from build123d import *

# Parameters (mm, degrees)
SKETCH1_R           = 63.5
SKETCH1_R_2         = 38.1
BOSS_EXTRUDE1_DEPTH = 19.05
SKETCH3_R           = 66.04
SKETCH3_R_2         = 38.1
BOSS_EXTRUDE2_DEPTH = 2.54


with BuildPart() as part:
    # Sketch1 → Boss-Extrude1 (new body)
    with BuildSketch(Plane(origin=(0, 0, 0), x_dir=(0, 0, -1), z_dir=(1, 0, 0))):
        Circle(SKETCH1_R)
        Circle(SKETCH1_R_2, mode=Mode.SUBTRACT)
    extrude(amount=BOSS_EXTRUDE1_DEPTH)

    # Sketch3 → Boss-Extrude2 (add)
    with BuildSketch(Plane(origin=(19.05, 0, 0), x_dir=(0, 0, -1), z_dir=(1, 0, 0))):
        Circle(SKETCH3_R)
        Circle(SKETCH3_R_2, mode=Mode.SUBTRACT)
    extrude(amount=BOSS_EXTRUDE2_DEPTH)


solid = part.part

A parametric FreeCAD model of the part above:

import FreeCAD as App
import Part
import Sketcher
Q = App.Units.Quantity

doc = App.newDocument("Part")
params = doc.addObject("Spreadsheet::Sheet", "Params")
for row, (alias, value) in enumerate([
    ("sketch1_diameter", "5 in"),
    ("sketch1_diameter2", "3 in"),
    ("pad1_length", "0.75 in"),
    ("sketch2_diameter", "3 in"),
    ("sketch2_diameter2", "5.2 in"),
    ("pad2_length", "0.1 in"),
], start=1):
    params.set(f"A{row}", alias)
    params.set(f"B{row}", "=" + value)
    params.setAlias(f"B{row}", alias)

body = doc.addObject("PartDesign::Body", "Body")

# Sketch on YZ plane
sketch1 = body.newObject("Sketcher::SketchObject", "Sketch")
sketch1.AttachmentSupport = (doc.getObject("YZ_Plane"), [""])
sketch1.MapMode = "FlatFace"
sketch1.addGeometry([
    Part.Circle(App.Vector(0, 0, 0), App.Vector(0, 0, 1), 64),
    Part.Circle(App.Vector(0, 0, 0), App.Vector(0, 0, 1), 38),
], False)
sketch1.addConstraint([
    Sketcher.Constraint("Coincident", 0, 3, -1, 1),
    Sketcher.Constraint("Coincident", 1, 3, -1, 1),
    Sketcher.Constraint("Diameter", 0, Q("5 in")),
    Sketcher.Constraint("Diameter", 1, Q("3 in")),
])
sketch1.setExpression("Constraints[2]", "Params.sketch1_diameter")
sketch1.setExpression("Constraints[3]", "Params.sketch1_diameter2")
pad1 = body.newObject("PartDesign::Pad", "Pad")
pad1.Profile = sketch1
pad1.setExpression("Length", "Params.pad1_length")

# Sketch on YZ plane
sketch2 = body.newObject("Sketcher::SketchObject", "Sketch001")
sketch2.AttachmentSupport = (doc.getObject("YZ_Plane"), [""])
sketch2.MapMode = "FlatFace"
sketch2.AttachmentOffset = App.Placement(App.Vector(0, 0, 0.75 * 25.4), App.Rotation())
sketch2.addGeometry([
    Part.Circle(App.Vector(0, 0, 0), App.Vector(0, 0, 1), 66),
    Part.Circle(App.Vector(0, 0, 0), App.Vector(0, 0, 1), 38),
], False)
sketch2.addConstraint([
    Sketcher.Constraint("Coincident", 0, 3, -1, 1),
    Sketcher.Constraint("Coincident", 1, 3, -1, 1),
    Sketcher.Constraint("Diameter", 1, Q("3 in")),
    Sketcher.Constraint("Diameter", 0, Q("5.2 in")),
])
sketch2.setExpression("Constraints[2]", "Params.sketch2_diameter")
sketch2.setExpression("Constraints[3]", "Params.sketch2_diameter2")
pad2 = body.newObject("PartDesign::Pad", "Pad001")
pad2.Profile = sketch2
pad2.setExpression("Length", "Params.pad2_length")

doc.recompute()
